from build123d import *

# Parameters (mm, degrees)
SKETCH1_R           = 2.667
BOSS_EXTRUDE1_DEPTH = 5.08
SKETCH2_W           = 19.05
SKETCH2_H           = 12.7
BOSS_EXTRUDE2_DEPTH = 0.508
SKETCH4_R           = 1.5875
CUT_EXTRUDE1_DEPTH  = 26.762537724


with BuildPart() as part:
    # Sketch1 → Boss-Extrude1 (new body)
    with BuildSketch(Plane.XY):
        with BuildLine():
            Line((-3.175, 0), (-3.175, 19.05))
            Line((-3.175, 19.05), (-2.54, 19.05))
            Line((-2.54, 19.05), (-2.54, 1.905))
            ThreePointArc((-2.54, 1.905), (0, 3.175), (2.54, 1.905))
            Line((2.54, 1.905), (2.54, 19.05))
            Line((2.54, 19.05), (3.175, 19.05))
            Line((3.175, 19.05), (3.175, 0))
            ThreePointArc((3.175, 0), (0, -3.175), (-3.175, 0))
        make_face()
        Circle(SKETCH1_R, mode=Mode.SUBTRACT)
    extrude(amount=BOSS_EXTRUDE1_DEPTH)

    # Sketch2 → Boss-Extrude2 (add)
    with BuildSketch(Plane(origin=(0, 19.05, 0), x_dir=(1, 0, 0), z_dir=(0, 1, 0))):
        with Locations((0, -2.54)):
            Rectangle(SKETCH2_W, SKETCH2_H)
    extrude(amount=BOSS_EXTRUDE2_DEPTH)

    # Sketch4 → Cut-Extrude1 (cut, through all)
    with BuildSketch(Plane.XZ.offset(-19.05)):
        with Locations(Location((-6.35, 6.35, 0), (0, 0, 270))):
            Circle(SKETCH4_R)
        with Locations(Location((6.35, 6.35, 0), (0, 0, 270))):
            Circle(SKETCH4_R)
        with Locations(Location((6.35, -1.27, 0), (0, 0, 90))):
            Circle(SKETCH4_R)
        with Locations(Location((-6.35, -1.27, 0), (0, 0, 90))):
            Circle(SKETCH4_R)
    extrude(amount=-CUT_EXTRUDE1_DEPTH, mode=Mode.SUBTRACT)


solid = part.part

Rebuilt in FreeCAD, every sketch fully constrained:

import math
import FreeCAD as App
import Part
import Sketcher
from FreeCAD import Vector
Q = App.Units.Quantity


def add_polygon(sketch, points):
    """Adds a closed chain of lines whose ends are joined by coincident constraints."""
    first, n = sketch.GeometryCount, len(points)
    for a, b in zip(points, points[1:] + points[:1]):
        sketch.addGeometry(Part.LineSegment(App.Vector(*a, 0), App.Vector(*b, 0)), False)
    for i in range(n):
        sketch.addConstraint(Sketcher.Constraint("Coincident", first + i, 2, first + (i + 1) % n, 1))

doc = App.newDocument("Part")
body = doc.addObject("PartDesign::Body", "Body")

sketch1 = doc.addObject("Sketcher::SketchObject", "Sketch")
body.addObject(sketch1)
sketch1.AttachmentSupport = (doc.XY_Plane, [""])
sketch1.MapMode = "FlatFace"
sketch1.addGeometry([
    Part.LineSegment(Vector(-3.2, 19.1, 0), Vector(-3.2, 0, 0)),
    Part.ArcOfCircle(Part.Circle(Vector(0, 0, 0), Vector(0, 0, 1), 3.2), math.radians(180), math.radians(360)),
    Part.LineSegment(Vector(3.2, 0, 0), Vector(3.2, 19.1, 0)),
    Part.LineSegment(Vector(3.2, 19.1, 0), Vector(2.5, 19.1, 0)),
    Part.LineSegment(Vector(2.5, 19.1, 0), Vector(2.5, 1.9, 0)),
    Part.ArcOfCircle(Part.Circle(Vector(0, 0, 0), Vector(0, 0, 1), 3.2), math.radians(37), math.radians(143)),
    Part.LineSegment(Vector(-2.5, 1.9, 0), Vector(-2.5, 19.1, 0)),
    Part.LineSegment(Vector(-2.5, 19.1, 0), Vector(-3.2, 19.1, 0)),
    Part.Circle(Vector(0, 0, 0), Vector(0, 0, 1), 2.7),
], False)
sketch1.addConstraint([
    Sketcher.Constraint("Tangent", 0, 2, 1, 1),
    Sketcher.Constraint("Tangent", 1, 2, 2, 1),
    Sketcher.Constraint("Coincident", 2, 2, 3, 1),
    Sketcher.Constraint("Coincident", 3, 2, 4, 1),
    Sketcher.Constraint("Coincident", 4, 2, 5, 1),
    Sketcher.Constraint("Coincident", 5, 2, 6, 1),
    Sketcher.Constraint("Coincident", 6, 2, 7, 1),
    Sketcher.Constraint("Coincident", 7, 2, 0, 1),
    Sketcher.Constraint("Vertical", 0),
    Sketcher.Constraint("Vertical", 2),
    Sketcher.Constraint("Horizontal", 3),
    Sketcher.Constraint("Vertical", 4),
    Sketcher.Constraint("Vertical", 6),
    Sketcher.Constraint("Horizontal", 7),
    Sketcher.Constraint("Coincident", 1, 3, -1, 1),
    Sketcher.Constraint("Coincident", 5, 3, -1, 1),
    Sketcher.Constraint("Coincident", 8, 3, -1, 1),
    Sketcher.Constraint("Equal", 1, 5),
    Sketcher.Constraint("Symmetric", 3, 2, 6, 2, -2),
    Sketcher.Constraint("Diameter", 8, Q("0.21 in")),
    Sketcher.Constraint("Radius", 1, Q("0.125 in")),
    Sketcher.Constraint("DistanceY", 0, 2, 0, 1, Q("0.75 in")),
    Sketcher.Constraint("DistanceX", -1, 1, 3, 2, Q("0.1 in")),
])
pad1 = doc.addObject("PartDesign::Pad", "Pad")
body.addObject(pad1)
pad1.Profile = sketch1
pad1.Length = Q("0.2 in")

sketch2 = doc.addObject("Sketcher::SketchObject", "Sketch001")
body.addObject(sketch2)
sketch2.AttachmentSupport = (doc.XZ_Plane, [""])
sketch2.MapMode = "FlatFace"
sketch2.AttachmentOffset = App.Placement(Vector(0, 0, -0.75 * 25.4), App.Rotation())
add_polygon(sketch2, [(-10, -4), (-10, 9), (10, 9), (10, -4)])
sketch2.addConstraint([
    Sketcher.Constraint("Vertical", 0),
    Sketcher.Constraint("Horizontal", 1),
    Sketcher.Constraint("Vertical", 2),
    Sketcher.Constraint("Horizontal", 3),
    Sketcher.Constraint("DistanceY", 0, 1, 0, 2, Q("0.5 in")),
    Sketcher.Constraint("DistanceX", 1, 1, 1, 2, Q("0.75 in")),
    Sketcher.Constraint("DistanceY", -1, 1, 0, 2, Q("0.35 in")),
    Sketcher.Constraint("DistanceX", 0, 2, -1, 1, Q("0.375 in")),
])
pad2 = doc.addObject("PartDesign::Pad", "Pad001")
body.addObject(pad2)
pad2.Profile = sketch2
pad2.Length = Q("0.02 in")
pad2.Reversed = True

sketch3 = doc.addObject("Sketcher::SketchObject", "Sketch002")
body.addObject(sketch3)
sketch3.AttachmentSupport = (doc.XZ_Plane, [""])
sketch3.MapMode = "FlatFace"
sketch3.AttachmentOffset = App.Placement(Vector(0, 0, -0.75 * 25.4), App.Rotation())
sketch3.addGeometry([
    Part.Circle(Vector(-6.3, 6.3, 0), Vector(0, 0, 1), 1.6),
    Part.Circle(Vector(6.3, 6.3, 0), Vector(0, 0, 1), 1.6),
    Part.Circle(Vector(6.3, -1.3, 0), Vector(0, 0, 1), 1.6),
    Part.Circle(Vector(-6.3, -1.3, 0), Vector(0, 0, 1), 1.6),
], False)
sketch3.addConstraint([
    Sketcher.Constraint("Equal", 0, 1),
    Sketcher.Constraint("Equal", 1, 2),
    Sketcher.Constraint("Equal", 2, 3),
    Sketcher.Constraint("Symmetric", 0, 3, 1, 3, -2),
    Sketcher.Constraint("Symmetric", 2, 3, 3, 3, -2),
    Sketcher.Constraint("Vertical", 1, 3, 2, 3),
    Sketcher.Constraint("Diameter", 0, Q("0.125 in")),
    Sketcher.Constraint("DistanceX", 0, 3, 1, 3, Q("0.5 in")),
    Sketcher.Constraint("DistanceY", 2, 3, 1, 3, Q("0.3 in")),
    Sketcher.Constraint("DistanceY", -1, 1, 0, 3, Q("0.25 in")),
])
pocket1 = doc.addObject("PartDesign::Pocket", "Pocket")
body.addObject(pocket1)
pocket1.Profile = sketch3
pocket1.Type = "ThroughAll"

doc.recompute()
